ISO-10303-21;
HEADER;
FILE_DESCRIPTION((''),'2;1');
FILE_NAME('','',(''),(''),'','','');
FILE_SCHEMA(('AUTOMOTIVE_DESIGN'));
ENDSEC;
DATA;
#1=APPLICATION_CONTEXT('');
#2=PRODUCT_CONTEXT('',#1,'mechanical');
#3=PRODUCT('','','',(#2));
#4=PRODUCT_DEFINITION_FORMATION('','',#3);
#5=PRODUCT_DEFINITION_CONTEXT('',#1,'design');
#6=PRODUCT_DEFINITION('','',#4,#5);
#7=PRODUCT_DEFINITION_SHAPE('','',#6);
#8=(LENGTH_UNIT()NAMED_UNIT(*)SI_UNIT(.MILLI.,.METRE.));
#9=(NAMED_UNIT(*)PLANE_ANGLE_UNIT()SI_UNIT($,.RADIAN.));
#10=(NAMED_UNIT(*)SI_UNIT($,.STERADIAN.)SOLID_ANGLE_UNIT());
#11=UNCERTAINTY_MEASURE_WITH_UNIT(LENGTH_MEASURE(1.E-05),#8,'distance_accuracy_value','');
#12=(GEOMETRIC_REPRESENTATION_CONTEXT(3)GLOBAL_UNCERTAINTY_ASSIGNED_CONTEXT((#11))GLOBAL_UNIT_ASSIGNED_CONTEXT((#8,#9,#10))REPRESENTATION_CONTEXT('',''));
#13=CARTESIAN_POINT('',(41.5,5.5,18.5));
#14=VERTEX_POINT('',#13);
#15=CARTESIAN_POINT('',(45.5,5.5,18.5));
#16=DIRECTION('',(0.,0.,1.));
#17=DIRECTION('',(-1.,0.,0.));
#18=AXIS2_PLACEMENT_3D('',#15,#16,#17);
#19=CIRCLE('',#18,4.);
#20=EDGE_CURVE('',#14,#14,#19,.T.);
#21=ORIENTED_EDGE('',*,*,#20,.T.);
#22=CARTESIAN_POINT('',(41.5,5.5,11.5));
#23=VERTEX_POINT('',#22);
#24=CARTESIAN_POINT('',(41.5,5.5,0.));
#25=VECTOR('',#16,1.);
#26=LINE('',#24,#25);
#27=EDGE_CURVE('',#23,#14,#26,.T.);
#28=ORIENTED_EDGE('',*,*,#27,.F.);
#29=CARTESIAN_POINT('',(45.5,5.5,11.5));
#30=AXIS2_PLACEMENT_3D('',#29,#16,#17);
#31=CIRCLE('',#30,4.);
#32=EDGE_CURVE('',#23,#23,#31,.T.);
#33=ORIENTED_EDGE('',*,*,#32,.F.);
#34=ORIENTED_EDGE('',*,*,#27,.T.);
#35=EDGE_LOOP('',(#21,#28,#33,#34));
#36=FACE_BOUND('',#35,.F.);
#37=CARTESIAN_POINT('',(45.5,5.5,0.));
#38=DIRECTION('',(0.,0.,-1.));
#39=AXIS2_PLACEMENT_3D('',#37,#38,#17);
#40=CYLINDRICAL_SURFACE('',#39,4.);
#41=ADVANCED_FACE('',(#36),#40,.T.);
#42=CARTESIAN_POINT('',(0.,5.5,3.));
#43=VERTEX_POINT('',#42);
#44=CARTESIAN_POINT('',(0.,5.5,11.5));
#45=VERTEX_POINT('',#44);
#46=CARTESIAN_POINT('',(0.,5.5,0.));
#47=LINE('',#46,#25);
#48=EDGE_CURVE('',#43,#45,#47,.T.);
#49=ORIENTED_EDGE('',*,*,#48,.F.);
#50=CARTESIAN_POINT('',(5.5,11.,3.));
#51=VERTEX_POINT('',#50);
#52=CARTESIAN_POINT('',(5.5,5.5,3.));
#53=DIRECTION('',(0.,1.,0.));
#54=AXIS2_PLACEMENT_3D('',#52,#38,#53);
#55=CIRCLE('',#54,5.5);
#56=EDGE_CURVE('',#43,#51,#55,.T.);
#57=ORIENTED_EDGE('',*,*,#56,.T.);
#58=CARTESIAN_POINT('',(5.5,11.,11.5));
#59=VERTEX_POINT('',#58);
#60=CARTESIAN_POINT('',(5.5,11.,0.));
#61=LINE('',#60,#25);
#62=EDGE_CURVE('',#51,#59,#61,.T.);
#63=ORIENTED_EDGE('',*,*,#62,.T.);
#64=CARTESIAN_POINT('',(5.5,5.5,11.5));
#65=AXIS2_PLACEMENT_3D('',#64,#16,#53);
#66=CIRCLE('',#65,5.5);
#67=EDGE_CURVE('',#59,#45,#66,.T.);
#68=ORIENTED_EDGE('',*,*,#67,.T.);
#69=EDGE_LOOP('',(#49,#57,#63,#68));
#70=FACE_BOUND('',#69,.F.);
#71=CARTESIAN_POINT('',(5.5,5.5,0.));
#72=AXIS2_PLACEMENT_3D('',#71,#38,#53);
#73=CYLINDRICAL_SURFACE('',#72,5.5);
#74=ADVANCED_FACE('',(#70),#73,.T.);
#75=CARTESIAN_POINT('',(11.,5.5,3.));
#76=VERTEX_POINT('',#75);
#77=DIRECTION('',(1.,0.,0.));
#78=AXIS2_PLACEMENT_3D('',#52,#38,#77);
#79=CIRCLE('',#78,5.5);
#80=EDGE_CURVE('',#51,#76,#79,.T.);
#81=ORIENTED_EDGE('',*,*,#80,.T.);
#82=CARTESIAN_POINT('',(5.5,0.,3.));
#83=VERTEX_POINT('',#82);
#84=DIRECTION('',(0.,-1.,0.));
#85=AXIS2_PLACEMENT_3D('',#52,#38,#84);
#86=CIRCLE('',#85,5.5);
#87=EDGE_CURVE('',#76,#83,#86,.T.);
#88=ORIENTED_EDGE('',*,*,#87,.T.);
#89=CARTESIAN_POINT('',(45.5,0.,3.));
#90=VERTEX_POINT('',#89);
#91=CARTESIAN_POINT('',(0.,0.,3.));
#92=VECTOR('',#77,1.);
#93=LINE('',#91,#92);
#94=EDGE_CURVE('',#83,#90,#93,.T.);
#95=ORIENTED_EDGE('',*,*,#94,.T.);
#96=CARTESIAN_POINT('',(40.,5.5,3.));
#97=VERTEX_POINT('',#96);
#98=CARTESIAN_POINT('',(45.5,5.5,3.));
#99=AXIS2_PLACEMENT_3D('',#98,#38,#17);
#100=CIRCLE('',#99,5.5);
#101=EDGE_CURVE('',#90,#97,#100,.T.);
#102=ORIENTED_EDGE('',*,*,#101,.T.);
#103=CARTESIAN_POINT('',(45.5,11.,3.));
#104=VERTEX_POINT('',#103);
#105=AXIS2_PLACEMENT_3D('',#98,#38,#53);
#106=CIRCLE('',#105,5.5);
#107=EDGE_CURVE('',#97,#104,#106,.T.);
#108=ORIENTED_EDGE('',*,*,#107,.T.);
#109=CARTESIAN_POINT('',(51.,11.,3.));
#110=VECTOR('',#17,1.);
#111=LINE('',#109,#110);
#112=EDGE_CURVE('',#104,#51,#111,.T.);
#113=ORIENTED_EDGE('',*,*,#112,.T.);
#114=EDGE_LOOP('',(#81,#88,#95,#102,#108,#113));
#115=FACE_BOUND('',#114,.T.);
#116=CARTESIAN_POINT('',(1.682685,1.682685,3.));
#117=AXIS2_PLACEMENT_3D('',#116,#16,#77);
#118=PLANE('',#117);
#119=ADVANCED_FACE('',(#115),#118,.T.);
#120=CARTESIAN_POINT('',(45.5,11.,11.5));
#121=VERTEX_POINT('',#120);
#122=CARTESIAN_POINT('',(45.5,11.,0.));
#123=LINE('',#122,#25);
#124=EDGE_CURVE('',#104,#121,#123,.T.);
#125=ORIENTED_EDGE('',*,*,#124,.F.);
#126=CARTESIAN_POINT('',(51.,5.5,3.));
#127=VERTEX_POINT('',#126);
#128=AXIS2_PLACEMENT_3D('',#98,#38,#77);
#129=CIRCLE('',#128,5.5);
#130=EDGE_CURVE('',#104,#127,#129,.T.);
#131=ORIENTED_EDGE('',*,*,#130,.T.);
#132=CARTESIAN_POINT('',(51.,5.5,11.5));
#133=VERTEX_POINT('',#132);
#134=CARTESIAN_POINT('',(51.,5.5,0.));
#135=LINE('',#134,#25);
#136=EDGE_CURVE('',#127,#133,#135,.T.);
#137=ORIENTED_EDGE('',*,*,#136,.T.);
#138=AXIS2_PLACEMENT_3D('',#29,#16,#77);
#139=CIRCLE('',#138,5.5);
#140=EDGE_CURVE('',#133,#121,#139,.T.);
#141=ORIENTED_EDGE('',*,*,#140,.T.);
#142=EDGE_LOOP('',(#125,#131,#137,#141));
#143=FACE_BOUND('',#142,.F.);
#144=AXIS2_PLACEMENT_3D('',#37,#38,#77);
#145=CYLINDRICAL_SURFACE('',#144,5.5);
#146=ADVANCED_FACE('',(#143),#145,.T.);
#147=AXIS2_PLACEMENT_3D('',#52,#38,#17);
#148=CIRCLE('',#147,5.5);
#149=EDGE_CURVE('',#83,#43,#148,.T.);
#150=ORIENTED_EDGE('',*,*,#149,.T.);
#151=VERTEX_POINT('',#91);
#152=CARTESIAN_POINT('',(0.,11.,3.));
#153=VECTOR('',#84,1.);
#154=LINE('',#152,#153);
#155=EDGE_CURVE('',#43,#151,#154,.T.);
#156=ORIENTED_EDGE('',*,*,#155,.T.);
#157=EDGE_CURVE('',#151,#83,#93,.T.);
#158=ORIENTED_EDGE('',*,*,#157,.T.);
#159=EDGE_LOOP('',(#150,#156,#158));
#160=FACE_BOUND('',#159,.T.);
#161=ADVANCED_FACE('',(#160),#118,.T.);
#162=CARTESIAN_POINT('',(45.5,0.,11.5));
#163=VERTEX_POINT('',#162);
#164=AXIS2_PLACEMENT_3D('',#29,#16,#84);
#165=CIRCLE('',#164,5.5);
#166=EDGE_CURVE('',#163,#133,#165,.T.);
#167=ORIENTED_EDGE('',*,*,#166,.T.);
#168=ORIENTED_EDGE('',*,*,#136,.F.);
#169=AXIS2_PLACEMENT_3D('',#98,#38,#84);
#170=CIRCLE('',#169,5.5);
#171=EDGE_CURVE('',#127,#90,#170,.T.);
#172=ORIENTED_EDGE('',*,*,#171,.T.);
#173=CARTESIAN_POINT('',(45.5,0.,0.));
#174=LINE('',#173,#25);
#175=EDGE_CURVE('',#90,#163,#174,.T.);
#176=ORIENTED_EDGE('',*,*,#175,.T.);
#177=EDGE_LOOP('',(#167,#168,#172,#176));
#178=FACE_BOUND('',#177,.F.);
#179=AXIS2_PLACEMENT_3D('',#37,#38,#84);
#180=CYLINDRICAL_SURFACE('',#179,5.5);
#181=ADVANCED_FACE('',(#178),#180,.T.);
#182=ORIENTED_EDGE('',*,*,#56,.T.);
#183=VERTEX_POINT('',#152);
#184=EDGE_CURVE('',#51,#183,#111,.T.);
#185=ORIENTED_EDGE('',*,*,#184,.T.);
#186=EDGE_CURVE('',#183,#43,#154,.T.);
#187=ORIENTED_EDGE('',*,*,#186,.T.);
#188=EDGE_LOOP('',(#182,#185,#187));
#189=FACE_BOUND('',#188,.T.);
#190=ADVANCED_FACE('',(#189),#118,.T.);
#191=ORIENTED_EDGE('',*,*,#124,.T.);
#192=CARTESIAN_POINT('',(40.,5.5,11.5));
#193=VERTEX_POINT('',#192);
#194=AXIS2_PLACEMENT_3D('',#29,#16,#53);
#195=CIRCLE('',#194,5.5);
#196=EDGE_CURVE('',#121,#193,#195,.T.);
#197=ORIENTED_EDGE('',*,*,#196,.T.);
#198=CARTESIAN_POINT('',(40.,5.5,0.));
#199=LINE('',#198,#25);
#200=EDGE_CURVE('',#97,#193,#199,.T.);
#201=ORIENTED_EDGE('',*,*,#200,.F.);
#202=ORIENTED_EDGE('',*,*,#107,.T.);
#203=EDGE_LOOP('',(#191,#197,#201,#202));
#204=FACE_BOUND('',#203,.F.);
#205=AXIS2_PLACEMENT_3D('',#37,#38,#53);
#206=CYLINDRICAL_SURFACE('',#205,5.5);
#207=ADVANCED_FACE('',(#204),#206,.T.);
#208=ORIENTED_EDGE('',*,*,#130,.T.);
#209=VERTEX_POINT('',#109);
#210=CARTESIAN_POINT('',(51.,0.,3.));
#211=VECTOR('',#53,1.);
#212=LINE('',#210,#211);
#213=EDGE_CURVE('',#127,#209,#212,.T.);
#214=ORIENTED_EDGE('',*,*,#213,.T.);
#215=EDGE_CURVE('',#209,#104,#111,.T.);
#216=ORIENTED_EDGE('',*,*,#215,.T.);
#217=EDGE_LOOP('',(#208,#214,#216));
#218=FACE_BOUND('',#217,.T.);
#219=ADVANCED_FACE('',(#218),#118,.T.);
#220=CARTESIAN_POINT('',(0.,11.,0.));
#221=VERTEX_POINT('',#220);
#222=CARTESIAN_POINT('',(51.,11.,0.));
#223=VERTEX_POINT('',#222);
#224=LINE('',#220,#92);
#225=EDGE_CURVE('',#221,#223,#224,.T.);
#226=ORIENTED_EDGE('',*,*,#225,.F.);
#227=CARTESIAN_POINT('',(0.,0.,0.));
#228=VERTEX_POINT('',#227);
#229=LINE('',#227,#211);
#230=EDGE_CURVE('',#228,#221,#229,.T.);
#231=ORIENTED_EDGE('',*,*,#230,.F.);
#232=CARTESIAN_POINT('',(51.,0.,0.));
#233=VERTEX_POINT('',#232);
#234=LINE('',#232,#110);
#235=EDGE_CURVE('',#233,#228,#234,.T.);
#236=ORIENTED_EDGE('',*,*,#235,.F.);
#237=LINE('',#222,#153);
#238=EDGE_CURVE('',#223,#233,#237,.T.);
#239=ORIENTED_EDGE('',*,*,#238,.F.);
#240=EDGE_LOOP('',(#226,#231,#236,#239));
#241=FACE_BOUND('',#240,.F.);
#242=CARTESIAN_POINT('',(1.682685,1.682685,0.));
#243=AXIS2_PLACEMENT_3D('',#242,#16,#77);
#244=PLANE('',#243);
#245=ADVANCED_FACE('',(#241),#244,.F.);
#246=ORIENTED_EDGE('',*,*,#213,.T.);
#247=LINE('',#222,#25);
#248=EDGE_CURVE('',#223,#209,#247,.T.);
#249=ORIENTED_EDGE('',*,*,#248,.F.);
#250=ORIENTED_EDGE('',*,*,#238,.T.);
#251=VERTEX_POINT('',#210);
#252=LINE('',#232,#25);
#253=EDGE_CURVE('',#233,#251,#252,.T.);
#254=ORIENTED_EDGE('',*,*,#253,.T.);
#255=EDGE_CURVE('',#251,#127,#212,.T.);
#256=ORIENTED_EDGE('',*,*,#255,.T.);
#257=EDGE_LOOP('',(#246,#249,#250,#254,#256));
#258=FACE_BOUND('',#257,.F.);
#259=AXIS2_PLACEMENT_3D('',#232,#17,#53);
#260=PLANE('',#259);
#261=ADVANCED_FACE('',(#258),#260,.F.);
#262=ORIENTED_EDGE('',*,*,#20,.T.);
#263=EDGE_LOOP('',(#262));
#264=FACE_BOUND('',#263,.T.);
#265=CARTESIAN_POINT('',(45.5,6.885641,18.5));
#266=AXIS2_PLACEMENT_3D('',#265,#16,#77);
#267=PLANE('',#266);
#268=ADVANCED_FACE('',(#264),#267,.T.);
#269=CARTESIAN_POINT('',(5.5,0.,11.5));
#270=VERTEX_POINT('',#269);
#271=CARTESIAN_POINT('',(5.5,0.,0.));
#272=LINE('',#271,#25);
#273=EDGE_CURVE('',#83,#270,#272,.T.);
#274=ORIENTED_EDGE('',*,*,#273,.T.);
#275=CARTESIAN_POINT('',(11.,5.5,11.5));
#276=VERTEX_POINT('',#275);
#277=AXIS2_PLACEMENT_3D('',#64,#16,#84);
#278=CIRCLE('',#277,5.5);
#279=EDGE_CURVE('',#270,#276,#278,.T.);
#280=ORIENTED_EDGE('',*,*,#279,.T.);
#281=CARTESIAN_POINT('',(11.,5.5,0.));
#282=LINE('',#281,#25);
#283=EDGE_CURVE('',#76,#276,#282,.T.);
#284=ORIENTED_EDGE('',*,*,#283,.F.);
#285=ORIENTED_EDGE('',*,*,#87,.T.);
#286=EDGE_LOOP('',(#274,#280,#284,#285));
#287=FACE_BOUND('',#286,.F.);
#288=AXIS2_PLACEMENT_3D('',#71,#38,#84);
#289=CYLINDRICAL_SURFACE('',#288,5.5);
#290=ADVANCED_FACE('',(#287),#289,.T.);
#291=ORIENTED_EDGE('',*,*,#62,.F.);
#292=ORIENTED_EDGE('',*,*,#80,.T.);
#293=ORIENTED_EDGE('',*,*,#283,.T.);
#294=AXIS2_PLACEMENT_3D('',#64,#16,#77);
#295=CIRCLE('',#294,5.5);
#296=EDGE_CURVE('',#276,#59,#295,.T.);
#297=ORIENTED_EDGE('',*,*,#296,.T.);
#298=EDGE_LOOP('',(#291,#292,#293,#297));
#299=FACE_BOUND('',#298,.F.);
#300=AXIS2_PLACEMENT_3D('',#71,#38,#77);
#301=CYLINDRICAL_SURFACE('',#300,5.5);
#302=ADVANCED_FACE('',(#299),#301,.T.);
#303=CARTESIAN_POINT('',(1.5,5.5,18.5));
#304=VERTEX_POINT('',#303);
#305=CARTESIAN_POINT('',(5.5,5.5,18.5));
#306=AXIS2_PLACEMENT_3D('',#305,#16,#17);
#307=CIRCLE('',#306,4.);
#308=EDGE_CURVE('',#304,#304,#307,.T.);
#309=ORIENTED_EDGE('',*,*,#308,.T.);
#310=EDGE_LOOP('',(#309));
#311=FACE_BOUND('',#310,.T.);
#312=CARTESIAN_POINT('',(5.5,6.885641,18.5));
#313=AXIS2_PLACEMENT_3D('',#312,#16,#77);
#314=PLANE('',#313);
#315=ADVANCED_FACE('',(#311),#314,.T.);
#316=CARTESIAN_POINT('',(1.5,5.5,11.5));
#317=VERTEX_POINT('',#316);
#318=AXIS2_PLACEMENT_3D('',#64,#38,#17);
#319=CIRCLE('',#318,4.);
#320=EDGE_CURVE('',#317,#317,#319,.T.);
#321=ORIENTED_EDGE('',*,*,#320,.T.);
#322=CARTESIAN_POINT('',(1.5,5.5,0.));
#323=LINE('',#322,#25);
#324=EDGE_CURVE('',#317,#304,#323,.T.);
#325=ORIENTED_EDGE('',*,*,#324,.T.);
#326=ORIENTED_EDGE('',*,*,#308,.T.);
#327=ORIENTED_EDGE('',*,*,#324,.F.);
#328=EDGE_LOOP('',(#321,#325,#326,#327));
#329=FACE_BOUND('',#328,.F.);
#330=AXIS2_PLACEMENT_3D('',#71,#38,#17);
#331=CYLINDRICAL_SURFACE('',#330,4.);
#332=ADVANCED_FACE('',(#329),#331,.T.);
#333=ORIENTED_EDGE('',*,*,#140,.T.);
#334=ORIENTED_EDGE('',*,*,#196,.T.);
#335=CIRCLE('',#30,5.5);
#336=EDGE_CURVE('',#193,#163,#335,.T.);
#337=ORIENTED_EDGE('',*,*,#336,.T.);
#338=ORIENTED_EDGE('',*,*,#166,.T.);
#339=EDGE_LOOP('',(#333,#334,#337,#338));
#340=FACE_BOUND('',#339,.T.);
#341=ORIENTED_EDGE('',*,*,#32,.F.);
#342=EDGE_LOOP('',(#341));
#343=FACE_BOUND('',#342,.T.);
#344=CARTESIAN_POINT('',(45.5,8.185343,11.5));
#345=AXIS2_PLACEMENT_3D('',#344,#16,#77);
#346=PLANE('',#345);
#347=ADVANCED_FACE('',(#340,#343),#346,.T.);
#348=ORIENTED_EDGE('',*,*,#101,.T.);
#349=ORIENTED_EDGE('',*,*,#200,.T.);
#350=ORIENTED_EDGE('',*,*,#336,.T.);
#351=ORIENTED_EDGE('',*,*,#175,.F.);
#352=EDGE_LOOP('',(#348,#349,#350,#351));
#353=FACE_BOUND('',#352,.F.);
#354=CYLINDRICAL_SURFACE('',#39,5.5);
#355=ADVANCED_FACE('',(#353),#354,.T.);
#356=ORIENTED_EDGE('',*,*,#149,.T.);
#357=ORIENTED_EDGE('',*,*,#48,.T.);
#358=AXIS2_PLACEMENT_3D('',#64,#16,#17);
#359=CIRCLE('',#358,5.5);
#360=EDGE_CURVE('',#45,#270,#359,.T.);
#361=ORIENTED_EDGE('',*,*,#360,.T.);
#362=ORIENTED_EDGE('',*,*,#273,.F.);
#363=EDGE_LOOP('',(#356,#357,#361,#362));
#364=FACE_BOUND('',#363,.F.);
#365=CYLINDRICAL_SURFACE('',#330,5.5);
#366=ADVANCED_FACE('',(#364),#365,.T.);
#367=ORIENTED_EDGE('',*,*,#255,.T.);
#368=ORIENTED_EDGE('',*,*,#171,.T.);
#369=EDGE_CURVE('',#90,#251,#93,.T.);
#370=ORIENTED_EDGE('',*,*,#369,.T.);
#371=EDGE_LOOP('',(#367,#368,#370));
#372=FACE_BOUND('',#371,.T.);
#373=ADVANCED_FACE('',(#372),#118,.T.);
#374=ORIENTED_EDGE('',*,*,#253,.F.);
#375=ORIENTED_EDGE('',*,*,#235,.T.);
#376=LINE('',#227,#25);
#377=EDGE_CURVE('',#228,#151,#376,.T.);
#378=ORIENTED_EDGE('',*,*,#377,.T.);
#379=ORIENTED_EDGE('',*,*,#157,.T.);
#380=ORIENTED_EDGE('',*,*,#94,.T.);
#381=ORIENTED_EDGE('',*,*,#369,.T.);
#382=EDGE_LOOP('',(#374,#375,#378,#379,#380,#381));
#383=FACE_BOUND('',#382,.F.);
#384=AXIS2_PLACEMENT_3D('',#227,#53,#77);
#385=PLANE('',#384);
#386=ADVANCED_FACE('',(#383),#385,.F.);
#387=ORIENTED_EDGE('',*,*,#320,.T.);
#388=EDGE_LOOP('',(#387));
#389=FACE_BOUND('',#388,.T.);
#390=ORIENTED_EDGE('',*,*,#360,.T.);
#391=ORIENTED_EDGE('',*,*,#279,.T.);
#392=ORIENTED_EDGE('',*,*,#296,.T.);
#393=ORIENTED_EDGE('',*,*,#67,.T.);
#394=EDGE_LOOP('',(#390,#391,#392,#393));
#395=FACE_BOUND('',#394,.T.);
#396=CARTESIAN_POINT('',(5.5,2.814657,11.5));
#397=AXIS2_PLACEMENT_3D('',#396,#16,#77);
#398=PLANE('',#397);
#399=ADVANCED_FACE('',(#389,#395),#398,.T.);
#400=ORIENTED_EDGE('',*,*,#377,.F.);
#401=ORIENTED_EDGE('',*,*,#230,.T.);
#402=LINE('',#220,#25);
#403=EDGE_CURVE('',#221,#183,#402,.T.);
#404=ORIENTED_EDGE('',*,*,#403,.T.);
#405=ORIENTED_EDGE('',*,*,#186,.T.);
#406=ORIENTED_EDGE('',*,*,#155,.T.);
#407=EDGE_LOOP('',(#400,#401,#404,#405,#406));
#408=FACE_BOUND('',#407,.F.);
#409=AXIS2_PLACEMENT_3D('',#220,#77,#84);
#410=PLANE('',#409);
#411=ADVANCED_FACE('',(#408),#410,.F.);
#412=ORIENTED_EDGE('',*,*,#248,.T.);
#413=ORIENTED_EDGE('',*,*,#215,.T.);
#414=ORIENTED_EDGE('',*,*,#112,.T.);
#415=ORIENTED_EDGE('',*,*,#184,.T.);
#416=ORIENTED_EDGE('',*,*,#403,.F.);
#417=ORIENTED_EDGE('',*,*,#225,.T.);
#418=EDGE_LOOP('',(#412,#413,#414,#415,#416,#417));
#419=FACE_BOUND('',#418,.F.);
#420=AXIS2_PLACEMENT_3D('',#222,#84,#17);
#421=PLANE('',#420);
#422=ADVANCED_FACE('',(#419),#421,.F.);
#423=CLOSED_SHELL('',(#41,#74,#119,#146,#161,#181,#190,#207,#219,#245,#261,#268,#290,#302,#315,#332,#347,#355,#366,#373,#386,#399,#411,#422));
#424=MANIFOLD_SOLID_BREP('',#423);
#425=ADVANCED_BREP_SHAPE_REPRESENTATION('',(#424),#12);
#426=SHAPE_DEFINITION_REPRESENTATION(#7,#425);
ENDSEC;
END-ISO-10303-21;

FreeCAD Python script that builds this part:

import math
import FreeCAD as App
import Part
import Sketcher

doc = App.newDocument("Part")
body = doc.addObject("PartDesign::Body", "Body")

# Sketch on XY plane
sketch1 = body.newObject("Sketcher::SketchObject", "Sketch")
sketch1.AttachmentSupport = (doc.getObject("XY_Plane"), [""])
sketch1.MapMode = "FlatFace"
sketch1.addGeometry(Part.LineSegment(App.Vector(0, 0, 0), App.Vector(51, 0, 0)), False)
sketch1.addGeometry(Part.LineSegment(App.Vector(51, 0, 0), App.Vector(51, 11, 0)), False)
sketch1.addGeometry(Part.LineSegment(App.Vector(51, 11, 0), App.Vector(0, 11, 0)), False)
sketch1.addGeometry(Part.LineSegment(App.Vector(0, 11, 0), App.Vector(0, 0, 0)), False)
sketch1.addGeometry(Part.Circle(App.Vector(45.5, 5.5, 0), App.Vector(0, 0, 1), 4), False)
sketch1.addGeometry(Part.Circle(App.Vector(5.5, 5.5, 0), App.Vector(0, 0, 1), 4), False)
sketch1.addConstraint(Sketcher.Constraint("Coincident", 0, 2, 1, 1))
sketch1.addConstraint(Sketcher.Constraint("Coincident", 1, 2, 2, 1))
sketch1.addConstraint(Sketcher.Constraint("Coincident", 2, 2, 3, 1))
sketch1.addConstraint(Sketcher.Constraint("Coincident", 3, 2, 0, 1))
sketch1.addConstraint(Sketcher.Constraint("Horizontal", 0))
sketch1.addConstraint(Sketcher.Constraint("Vertical", 1))
sketch1.addConstraint(Sketcher.Constraint("Horizontal", 2))
sketch1.addConstraint(Sketcher.Constraint("Vertical", 3))
sketch1.addConstraint(Sketcher.Constraint("Coincident", 3, 2, -1, 1))
sketch1.addConstraint(Sketcher.Constraint("Equal", 4, 5))
sketch1.addConstraint(Sketcher.Constraint("Horizontal", 4, 3, 5, 3))
sketch1.addConstraint(Sketcher.Constraint("Diameter", 4, 8.0))
sketch1.addConstraint(Sketcher.Constraint("DistanceX", 0, 1, 0, 2, 51.0))
sketch1.addConstraint(Sketcher.Constraint("DistanceY", 1, 1, 1, 2, 11.0))
sketch1.addConstraint(Sketcher.Constraint("DistanceX", 5, 3, 4, 3, 40.0))
sketch1.addConstraint(Sketcher.Constraint("DistanceX", -1, 1, 4, 3, 45.5))
sketch1.addConstraint(Sketcher.Constraint("DistanceY", -1, 1, 4, 3, 5.5))
pad1 = body.newObject("PartDesign::Pad", "Pad")
pad1.Profile = sketch1
pad1.Length = 3

# Sketch on XY plane
sketch2 = body.newObject("Sketcher::SketchObject", "Sketch001")
sketch2.AttachmentSupport = (doc.getObject("XY_Plane"), [""])
sketch2.MapMode = "FlatFace"
sketch2.addGeometry(Part.ArcOfCircle(Part.Circle(App.Vector(5.5, 5.5, 0), App.Vector(0, 0, 1), 5.5), math.radians(180), math.radians(270)), False)
sketch2.addGeometry(Part.ArcOfCircle(Part.Circle(App.Vector(5.5, 5.5, 0), App.Vector(0, 0, 1), 5.5), math.radians(-90), math.radians(0)), False)
sketch2.addGeometry(Part.ArcOfCircle(Part.Circle(App.Vector(5.5, 5.5, 0), App.Vector(0, 0, 1), 5.5), math.radians(0), math.radians(90)), False)
sketch2.addGeometry(Part.ArcOfCircle(Part.Circle(App.Vector(5.5, 5.5, 0), App.Vector(0, 0, 1), 5.5), math.radians(90), math.radians(180)), False)
sketch2.addGeometry(Part.Circle(App.Vector(5.5, 5.5, 0), App.Vector(0, 0, 1), 4), False)
sketch2.addGeometry(Part.ArcOfCircle(Part.Circle(App.Vector(45.5, 5.5, 0), App.Vector(0, 0, 1), 5.5), math.radians(90), math.radians(180)), False)
sketch2.addGeometry(Part.ArcOfCircle(Part.Circle(App.Vector(45.5, 5.5, 0), App.Vector(0, 0, 1), 5.5), math.radians(180), math.radians(270)), False)
sketch2.addGeometry(Part.ArcOfCircle(Part.Circle(App.Vector(45.5, 5.5, 0), App.Vector(0, 0, 1), 5.5), math.radians(-90), math.radians(0)), False)
sketch2.addGeometry(Part.ArcOfCircle(Part.Circle(App.Vector(45.5, 5.5, 0), App.Vector(0, 0, 1), 5.5), math.radians(0), math.radians(90)), False)
sketch2.addGeometry(Part.Circle(App.Vector(45.5, 5.5, 0), App.Vector(0, 0, 1), 4), False)
sketch2.addConstraint(Sketcher.Constraint("Tangent", 0, 2, 1, 1))
sketch2.addConstraint(Sketcher.Constraint("Tangent", 1, 2, 2, 1))
sketch2.addConstraint(Sketcher.Constraint("Tangent", 2, 2, 3, 1))
sketch2.addConstraint(Sketcher.Constraint("Tangent", 3, 2, 0, 1))
sketch2.addConstraint(Sketcher.Constraint("Tangent", 5, 2, 6, 1))
sketch2.addConstraint(Sketcher.Constraint("Tangent", 6, 2, 7, 1))
sketch2.addConstraint(Sketcher.Constraint("Tangent", 7, 2, 8, 1))
sketch2.addConstraint(Sketcher.Constraint("Tangent", 8, 2, 5, 1))
sketch2.addConstraint(Sketcher.Constraint("Coincident", 4, 3, 0, 3))
sketch2.addConstraint(Sketcher.Constraint("Coincident", 9, 3, 5, 3))
sketch2.addConstraint(Sketcher.Constraint("Equal", 0, 1))
sketch2.addConstraint(Sketcher.Constraint("Equal", 3, 5))
sketch2.addConstraint(Sketcher.Constraint("Equal", 5, 6))
sketch2.addConstraint(Sketcher.Constraint("Equal", 4, 9))
sketch2.addConstraint(Sketcher.Constraint("PointOnObject", 0, 2, -1))
sketch2.addConstraint(Sketcher.Constraint("PointOnObject", 3, 2, -2))
sketch2.addConstraint(Sketcher.Constraint("PointOnObject", 6, 2, -1))
sketch2.addConstraint(Sketcher.Constraint("Horizontal", 9, 3, 1, 2))
sketch2.addConstraint(Sketcher.Constraint("Horizontal", 1, 2, 3, 2))
sketch2.addConstraint(Sketcher.Constraint("Horizontal", 3, 2, 5, 2))
sketch2.addConstraint(Sketcher.Constraint("Horizontal", 5, 2, 7, 2))
sketch2.addConstraint(Sketcher.Constraint("Vertical", 4, 3, 0, 2))
sketch2.addConstraint(Sketcher.Constraint("Vertical", 0, 2, 2, 2))
sketch2.addConstraint(Sketcher.Constraint("Vertical", 9, 3, 6, 2))
sketch2.addConstraint(Sketcher.Constraint("Vertical", 6, 2, 8, 2))
sketch2.addConstraint(Sketcher.Constraint("Diameter", 4, 8.0))
sketch2.addConstraint(Sketcher.Constraint("Radius", 0, 5.5))
sketch2.addConstraint(Sketcher.Constraint("DistanceX", -1, 1, 5, 2, 40.0))
pad2 = body.newObject("PartDesign::Pad", "Pad001")
pad2.Profile = sketch2
pad2.Length = 11.5

# Sketch on XY plane
sketch3 = body.newObject("Sketcher::SketchObject", "Sketch002")
sketch3.AttachmentSupport = (doc.getObject("XY_Plane"), [""])
sketch3.MapMode = "FlatFace"
sketch3.addGeometry(Part.Circle(App.Vector(45.5, 5.5, 0), App.Vector(0, 0, 1), 4), False)
sketch3.addGeometry(Part.Circle(App.Vector(5.5, 5.5, 0), App.Vector(0, 0, 1), 4), False)
sketch3.addConstraint(Sketcher.Constraint("Equal", 0, 1))
sketch3.addConstraint(Sketcher.Constraint("Horizontal", 0, 3, 1, 3))
sketch3.addConstraint(Sketcher.Constraint("Diameter", 0, 8.0))
sketch3.addConstraint(Sketcher.Constraint("DistanceX", 1, 3, 0, 3, 40.0))
sketch3.addConstraint(Sketcher.Constraint("DistanceX", -1, 1, 0, 3, 45.5))
sketch3.addConstraint(Sketcher.Constraint("DistanceY", -1, 1, 0, 3, 5.5))
pad3 = body.newObject("PartDesign::Pad", "Pad002")
pad3.Profile = sketch3
pad3.Length = 18.5

doc.recompute()
